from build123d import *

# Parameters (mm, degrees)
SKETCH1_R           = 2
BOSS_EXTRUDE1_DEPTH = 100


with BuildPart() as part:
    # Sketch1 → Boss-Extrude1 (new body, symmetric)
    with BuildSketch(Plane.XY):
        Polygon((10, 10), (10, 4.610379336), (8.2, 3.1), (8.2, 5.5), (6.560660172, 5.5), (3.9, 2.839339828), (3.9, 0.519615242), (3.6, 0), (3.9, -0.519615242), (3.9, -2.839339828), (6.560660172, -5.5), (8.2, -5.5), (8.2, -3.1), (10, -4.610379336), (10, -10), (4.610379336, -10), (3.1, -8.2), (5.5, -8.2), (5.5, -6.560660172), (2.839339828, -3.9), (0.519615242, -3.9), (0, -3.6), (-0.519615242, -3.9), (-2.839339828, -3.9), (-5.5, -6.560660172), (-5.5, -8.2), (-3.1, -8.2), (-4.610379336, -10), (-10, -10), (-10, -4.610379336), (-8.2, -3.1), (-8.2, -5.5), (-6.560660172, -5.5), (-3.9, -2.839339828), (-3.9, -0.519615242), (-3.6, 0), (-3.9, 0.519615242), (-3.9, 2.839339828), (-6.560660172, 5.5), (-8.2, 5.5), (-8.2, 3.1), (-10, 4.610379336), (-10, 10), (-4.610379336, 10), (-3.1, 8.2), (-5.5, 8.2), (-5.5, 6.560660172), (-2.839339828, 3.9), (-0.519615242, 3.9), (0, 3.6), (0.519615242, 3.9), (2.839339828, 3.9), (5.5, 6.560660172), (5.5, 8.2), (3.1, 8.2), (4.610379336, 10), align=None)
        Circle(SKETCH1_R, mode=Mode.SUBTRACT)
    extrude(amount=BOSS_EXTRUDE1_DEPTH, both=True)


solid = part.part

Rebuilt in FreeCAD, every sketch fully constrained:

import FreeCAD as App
import Part
import Sketcher
Q = App.Units.Quantity


def add_polygon(sketch, points):
    """Adds a closed chain of lines whose ends are joined by coincident constraints."""
    first, n = sketch.GeometryCount, len(points)
    for a, b in zip(points, points[1:] + points[:1]):
        sketch.addGeometry(Part.LineSegment(App.Vector(*a, 0), App.Vector(*b, 0)), False)
    for i in range(n):
        sketch.addConstraint(Sketcher.Constraint("Coincident", first + i, 2, first + (i + 1) % n, 1))

doc = App.newDocument("Part")
body = doc.addObject("PartDesign::Body", "Body")

sketch1 = body.newObject("Sketcher::SketchObject", "Sketch")
sketch1.AttachmentSupport = (doc.getObject("XY_Plane"), [""])
sketch1.MapMode = "FlatFace"
add_polygon(sketch1, [(10, 4.6), (10, 10), (4.6, 10), (3.1, 8.2), (5.5, 8.2), (5.5, 6.6), (2.8, 3.9), (0.5, 3.9), (0, 3.6), (-0.5, 3.9), (-2.8, 3.9), (-5.5, 6.6), (-5.5, 8.2), (-3.1, 8.2), (-4.6, 10), (-10, 10), (-10, 4.6), (-8.2, 3.1), (-8.2, 5.5), (-6.6, 5.5), (-3.9, 2.8), (-3.9, 0.5), (-3.6, 0), (-3.9, -0.5), (-3.9, -2.8), (-6.6, -5.5), (-8.2, -5.5), (-8.2, -3.1), (-10, -4.6), (-10, -10), (-4.6, -10), (-3.1, -8.2), (-5.5, -8.2), (-5.5, -6.6), (-2.8, -3.9), (-0.5, -3.9), (0, -3.6), (0.5, -3.9), (2.8, -3.9), (5.5, -6.6), (5.5, -8.2), (3.1, -8.2), (4.6, -10), (10, -10), (10, -4.6), (8.2, -3.1), (8.2, -5.5), (6.6, -5.5), (3.9, -2.8), (3.9, -0.5), (3.6, 0), (3.9, 0.5), (3.9, 2.8), (6.6, 5.5), (8.2, 5.5), (8.2, 3.1)])
sketch1.addGeometry(Part.Circle(App.Vector(0, 0, 0), App.Vector(0, 0, 1), 2), False)
sketch1.addConstraint(Sketcher.Constraint("Vertical", 0))
sketch1.addConstraint(Sketcher.Constraint("Horizontal", 1))
sketch1.addConstraint(Sketcher.Constraint("Horizontal", 3))
sketch1.addConstraint(Sketcher.Constraint("Vertical", 4))
sketch1.addConstraint(Sketcher.Constraint("Horizontal", 6))
sketch1.addConstraint(Sketcher.Constraint("Horizontal", 9))
sketch1.addConstraint(Sketcher.Constraint("Vertical", 11))
sketch1.addConstraint(Sketcher.Constraint("Horizontal", 12))
sketch1.addConstraint(Sketcher.Constraint("Horizontal", 14))
sketch1.addConstraint(Sketcher.Constraint("Vertical", 15))
sketch1.addConstraint(Sketcher.Constraint("Vertical", 17))
sketch1.addConstraint(Sketcher.Constraint("Horizontal", 18))
sketch1.addConstraint(Sketcher.Constraint("Vertical", 20))
sketch1.addConstraint(Sketcher.Constraint("Vertical", 23))
sketch1.addConstraint(Sketcher.Constraint("Horizontal", 25))
sketch1.addConstraint(Sketcher.Constraint("Vertical", 26))
sketch1.addConstraint(Sketcher.Constraint("Vertical", 28))
sketch1.addConstraint(Sketcher.Constraint("Horizontal", 29))
sketch1.addConstraint(Sketcher.Constraint("Horizontal", 31))
sketch1.addConstraint(Sketcher.Constraint("Vertical", 32))
sketch1.addConstraint(Sketcher.Constraint("Horizontal", 34))
sketch1.addConstraint(Sketcher.Constraint("Horizontal", 37))
sketch1.addConstraint(Sketcher.Constraint("Vertical", 39))
sketch1.addConstraint(Sketcher.Constraint("Horizontal", 40))
sketch1.addConstraint(Sketcher.Constraint("Horizontal", 42))
sketch1.addConstraint(Sketcher.Constraint("Vertical", 43))
sketch1.addConstraint(Sketcher.Constraint("Vertical", 45))
sketch1.addConstraint(Sketcher.Constraint("Horizontal", 46))
sketch1.addConstraint(Sketcher.Constraint("Vertical", 48))
sketch1.addConstraint(Sketcher.Constraint("Vertical", 51))
sketch1.addConstraint(Sketcher.Constraint("Horizontal", 53))
sketch1.addConstraint(Sketcher.Constraint("Vertical", 54))
sketch1.addConstraint(Sketcher.Constraint("Coincident", 56, 3, -1, 1))
sketch1.addConstraint(Sketcher.Constraint("Symmetric", 0, 2, 28, 2, -1, 1))
sketch1.addConstraint(Sketcher.Constraint("Symmetric", 2, 2, 30, 2, -1, 1))
sketch1.addConstraint(Sketcher.Constraint("Symmetric", 4, 2, 32, 2, -1, 1))
sketch1.addConstraint(Sketcher.Constraint("Symmetric", 5, 2, 33, 2, -1, 1))
sketch1.addConstraint(Sketcher.Constraint("Symmetric", 7, 2, 35, 2, -1, 1))
sketch1.addConstraint(Sketcher.Constraint("Symmetric", 8, 2, 36, 2, -1, 1))
sketch1.addConstraint(Sketcher.Constraint("Symmetric", 10, 2, 38, 2, -1, 1))
sketch1.addConstraint(Sketcher.Constraint("Symmetric", 12, 2, 40, 2, -1, 1))
sketch1.addConstraint(Sketcher.Constraint("Symmetric", 13, 2, 41, 2, -1, 1))
sketch1.addConstraint(Sketcher.Constraint("Symmetric", 15, 2, 43, 2, -1, 1))
sketch1.addConstraint(Sketcher.Constraint("Symmetric", 16, 2, 44, 2, -1, 1))
sketch1.addConstraint(Sketcher.Constraint("Symmetric", 18, 2, 46, 2, -1, 1))
sketch1.addConstraint(Sketcher.Constraint("Symmetric", 19, 2, 47, 2, -1, 1))
sketch1.addConstraint(Sketcher.Constraint("Symmetric", 21, 2, 49, 2, -1, 1))
sketch1.addConstraint(Sketcher.Constraint("Symmetric", 22, 2, 50, 2, -1, 1))
sketch1.addConstraint(Sketcher.Constraint("Symmetric", 24, 2, 52, 2, -1, 1))
sketch1.addConstraint(Sketcher.Constraint("Symmetric", 26, 2, 54, 2, -1, 1))
sketch1.addConstraint(Sketcher.Constraint("Symmetric", 6, 2, 8, 2, -2))
sketch1.addConstraint(Sketcher.Constraint("Symmetric", 4, 2, 10, 2, -2))
sketch1.addConstraint(Sketcher.Constraint("Symmetric", 2, 2, 12, 2, -2))
sketch1.addConstraint(Sketcher.Constraint("Symmetric", 1, 2, 13, 2, -2))
sketch1.addConstraint(Sketcher.Constraint("Symmetric", 27, 2, 43, 2, -2))
sketch1.addConstraint(Sketcher.Constraint("Symmetric", 26, 2, 44, 2, -2))
sketch1.addConstraint(Sketcher.Constraint("Symmetric", 24, 2, 46, 2, -2))
sketch1.addConstraint(Sketcher.Constraint("Symmetric", 23, 2, 47, 2, -2))
sketch1.addConstraint(Sketcher.Constraint("PointOnObject", 7, 2, -2))
sketch1.addConstraint(Sketcher.Constraint("PointOnObject", 21, 2, -1))
sketch1.addConstraint(Sketcher.Constraint("Perpendicular", 5, 10))
sketch1.addConstraint(Sketcher.Constraint("Perpendicular", 2, 16))
sketch1.addConstraint(Sketcher.Constraint("Parallel", 10, 19))
sketch1.addConstraint(Sketcher.Constraint("Perpendicular", 7, 21))
sketch1.addConstraint(Sketcher.Constraint("Perpendicular", 8, 22))
sketch1.addConstraint(Sketcher.Constraint("Perpendicular", 19, 24))
sketch1.addConstraint(Sketcher.Constraint("Perpendicular", 16, 30))
sketch1.addConstraint(Sketcher.Constraint("Perpendicular", 21, 35))
sketch1.addConstraint(Sketcher.Constraint("Perpendicular", 33, 38))
sketch1.addConstraint(Sketcher.Constraint("Perpendicular", 35, 49))
sketch1.addConstraint(Sketcher.Constraint("Perpendicular", 47, 52))
sketch1.addConstraint(Sketcher.Constraint("Perpendicular", 41, 55))
sketch1.addConstraint(Sketcher.Constraint("Equal", 42, 0))
sketch1.addConstraint(Sketcher.Constraint("Equal", 53, 4))
sketch1.addConstraint(Sketcher.Constraint("Equal", 40, 17))
sketch1.addConstraint(Sketcher.Constraint("Equal", 37, 20))
sketch1.addConstraint(Sketcher.Constraint("Equal", 13, 16))
sketch1.addConstraint(Sketcher.Constraint("Equal", 10, 19))
sketch1.addConstraint(Sketcher.Constraint("Equal", 8, 21))
sketch1.addConstraint(Sketcher.Constraint("Diameter", 56, Q("4 mm")))
sketch1.addConstraint(Sketcher.Constraint("Angle", 2, Q("-130 deg")))
sketch1.addConstraint(Sketcher.Constraint("Angle", 7, Q("-150 deg")))
sketch1.addConstraint(Sketcher.Constraint("DistanceX", 3, 1, 3, 2, Q("2.4 mm")))
sketch1.addConstraint(Sketcher.Constraint("DistanceX", -1, 1, 0, 2, Q("10 mm")))
sketch1.addConstraint(Sketcher.Constraint("Distance", 7, Q("0.6 mm")))
sketch1.addConstraint(Sketcher.Constraint("DistanceX", -1, 1, 2, 2, Q("3.1 mm")))
sketch1.addConstraint(Sketcher.Constraint("DistanceY", -1, 1, 2, 2, Q("8.2 mm")))
sketch1.addConstraint(Sketcher.Constraint("DistanceY", -1, 1, 5, 2, Q("3.9 mm")))
sketch1.addConstraint(Sketcher.Constraint("DistanceX", 18, 1, 18, 2, Q("1.63934 mm")))
pad1 = body.newObject("PartDesign::Pad", "Pad")
pad1.Profile = sketch1
pad1.Length = 200
pad1.Midplane = True

doc.recompute()
